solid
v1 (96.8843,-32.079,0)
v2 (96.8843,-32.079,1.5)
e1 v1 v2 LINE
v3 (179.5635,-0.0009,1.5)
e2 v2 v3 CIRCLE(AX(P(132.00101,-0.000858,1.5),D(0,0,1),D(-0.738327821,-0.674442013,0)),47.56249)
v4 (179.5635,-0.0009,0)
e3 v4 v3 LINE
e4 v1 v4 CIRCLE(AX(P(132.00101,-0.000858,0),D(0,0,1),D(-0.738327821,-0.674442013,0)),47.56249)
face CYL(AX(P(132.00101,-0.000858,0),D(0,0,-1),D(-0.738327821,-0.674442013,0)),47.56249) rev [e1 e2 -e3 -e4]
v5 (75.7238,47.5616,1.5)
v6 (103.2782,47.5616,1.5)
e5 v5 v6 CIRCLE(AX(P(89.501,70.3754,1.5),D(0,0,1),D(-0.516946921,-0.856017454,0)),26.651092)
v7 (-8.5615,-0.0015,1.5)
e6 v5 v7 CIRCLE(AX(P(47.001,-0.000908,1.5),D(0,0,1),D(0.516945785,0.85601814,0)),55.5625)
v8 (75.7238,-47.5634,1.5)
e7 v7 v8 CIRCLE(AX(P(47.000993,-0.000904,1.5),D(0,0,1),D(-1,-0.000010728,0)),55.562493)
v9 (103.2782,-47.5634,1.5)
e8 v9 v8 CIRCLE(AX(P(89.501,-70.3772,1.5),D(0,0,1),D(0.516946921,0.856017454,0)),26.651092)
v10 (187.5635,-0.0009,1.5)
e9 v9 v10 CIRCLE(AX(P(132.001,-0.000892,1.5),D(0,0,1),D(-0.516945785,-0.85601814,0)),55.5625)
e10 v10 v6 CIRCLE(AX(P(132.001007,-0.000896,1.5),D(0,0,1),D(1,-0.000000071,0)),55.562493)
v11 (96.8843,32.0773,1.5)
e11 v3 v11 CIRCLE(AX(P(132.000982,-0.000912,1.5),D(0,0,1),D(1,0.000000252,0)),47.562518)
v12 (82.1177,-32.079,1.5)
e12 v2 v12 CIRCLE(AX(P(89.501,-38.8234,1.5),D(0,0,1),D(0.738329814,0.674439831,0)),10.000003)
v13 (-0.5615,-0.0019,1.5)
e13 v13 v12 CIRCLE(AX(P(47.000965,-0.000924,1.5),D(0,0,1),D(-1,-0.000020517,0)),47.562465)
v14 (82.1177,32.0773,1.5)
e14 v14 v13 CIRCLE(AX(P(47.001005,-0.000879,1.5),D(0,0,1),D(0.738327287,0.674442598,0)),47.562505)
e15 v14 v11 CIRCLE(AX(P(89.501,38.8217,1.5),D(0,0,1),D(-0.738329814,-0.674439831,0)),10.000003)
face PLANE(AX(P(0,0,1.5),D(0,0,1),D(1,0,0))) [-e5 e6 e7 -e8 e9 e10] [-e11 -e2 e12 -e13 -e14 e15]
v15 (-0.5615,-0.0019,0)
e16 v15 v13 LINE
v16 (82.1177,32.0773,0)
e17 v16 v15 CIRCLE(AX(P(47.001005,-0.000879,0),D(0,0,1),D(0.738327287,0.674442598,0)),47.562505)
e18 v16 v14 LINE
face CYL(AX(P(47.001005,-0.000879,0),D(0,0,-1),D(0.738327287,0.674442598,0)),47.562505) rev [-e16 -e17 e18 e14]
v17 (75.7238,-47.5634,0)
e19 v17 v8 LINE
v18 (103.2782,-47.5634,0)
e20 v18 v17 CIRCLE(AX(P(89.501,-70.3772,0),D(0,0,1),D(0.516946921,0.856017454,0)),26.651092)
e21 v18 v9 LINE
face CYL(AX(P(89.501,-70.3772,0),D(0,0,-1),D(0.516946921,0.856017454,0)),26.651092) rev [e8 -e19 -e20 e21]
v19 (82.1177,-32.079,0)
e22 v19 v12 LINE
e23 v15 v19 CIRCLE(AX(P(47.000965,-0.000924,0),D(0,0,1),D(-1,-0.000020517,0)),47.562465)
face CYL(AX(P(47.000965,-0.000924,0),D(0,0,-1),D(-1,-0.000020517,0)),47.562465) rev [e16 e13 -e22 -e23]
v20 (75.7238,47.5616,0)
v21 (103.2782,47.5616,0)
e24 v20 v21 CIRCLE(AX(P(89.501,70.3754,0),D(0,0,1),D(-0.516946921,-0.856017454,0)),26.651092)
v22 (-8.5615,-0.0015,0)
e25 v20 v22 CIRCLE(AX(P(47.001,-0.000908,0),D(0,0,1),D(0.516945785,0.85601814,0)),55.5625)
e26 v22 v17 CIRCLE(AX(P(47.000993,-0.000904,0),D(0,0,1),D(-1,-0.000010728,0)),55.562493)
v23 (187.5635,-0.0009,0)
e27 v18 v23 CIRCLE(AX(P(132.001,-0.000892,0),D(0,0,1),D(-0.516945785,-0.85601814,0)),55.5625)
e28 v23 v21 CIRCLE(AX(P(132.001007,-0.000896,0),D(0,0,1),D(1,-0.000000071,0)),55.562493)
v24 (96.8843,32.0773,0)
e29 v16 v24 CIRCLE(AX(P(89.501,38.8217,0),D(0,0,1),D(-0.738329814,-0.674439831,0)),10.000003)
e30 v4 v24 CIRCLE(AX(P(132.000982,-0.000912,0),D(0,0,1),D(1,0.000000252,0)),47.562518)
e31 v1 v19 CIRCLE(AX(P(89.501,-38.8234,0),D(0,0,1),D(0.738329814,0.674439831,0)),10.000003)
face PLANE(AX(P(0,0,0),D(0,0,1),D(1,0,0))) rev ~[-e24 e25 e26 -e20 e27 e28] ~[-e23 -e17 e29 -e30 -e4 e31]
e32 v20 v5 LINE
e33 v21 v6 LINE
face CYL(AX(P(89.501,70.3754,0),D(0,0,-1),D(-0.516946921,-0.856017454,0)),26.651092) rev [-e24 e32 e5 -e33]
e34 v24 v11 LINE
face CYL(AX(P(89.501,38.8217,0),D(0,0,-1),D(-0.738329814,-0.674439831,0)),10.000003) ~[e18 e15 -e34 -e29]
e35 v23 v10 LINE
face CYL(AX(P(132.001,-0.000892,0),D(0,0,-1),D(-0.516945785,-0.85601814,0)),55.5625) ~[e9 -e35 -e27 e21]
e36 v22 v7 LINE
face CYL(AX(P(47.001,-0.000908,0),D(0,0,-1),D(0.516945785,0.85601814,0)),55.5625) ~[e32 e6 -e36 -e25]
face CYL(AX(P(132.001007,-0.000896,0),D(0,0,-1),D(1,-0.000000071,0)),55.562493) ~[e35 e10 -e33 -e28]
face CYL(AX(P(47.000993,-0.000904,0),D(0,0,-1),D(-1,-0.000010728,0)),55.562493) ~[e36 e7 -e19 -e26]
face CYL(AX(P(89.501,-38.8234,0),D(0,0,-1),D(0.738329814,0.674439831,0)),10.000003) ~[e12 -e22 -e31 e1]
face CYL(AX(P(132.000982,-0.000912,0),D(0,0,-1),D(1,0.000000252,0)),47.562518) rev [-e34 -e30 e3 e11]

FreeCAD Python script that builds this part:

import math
import FreeCAD as App
import Part
import Sketcher

V = App.Vector
Q = App.Units.Quantity

doc = App.newDocument("Part")
params = doc.addObject("Spreadsheet::Sheet", "Params")
for row, (alias, value) in enumerate([
    ("sketch1_radius", "2.1875 in"),
    ("pad1_length", "1.5 mm"),
], start=1):
    params.set(f"A{row}", alias)
    params.set(f"B{row}", "=" + value)
    params.setAlias(f"B{row}", alias)

body = doc.addObject("PartDesign::Body", "Body")

# Sketch on XY plane
sketch1 = doc.addObject("Sketcher::SketchObject", "Sketch")
body.addObject(sketch1)
sketch1.AttachmentSupport = (doc.XY_Plane, [""])
sketch1.MapMode = "FlatFace"
sketch1.addGeometry(Part.ArcOfCircle(Part.Circle(V(90, 70, 0), V(0, 0, 1), 27), math.radians(-121), math.radians(-59)), False)
sketch1.addGeometry(Part.ArcOfCircle(Part.Circle(V(47, 0, 0), V(0, 0, 1), 56), math.radians(59), math.radians(180)), False)
sketch1.addGeometry(Part.ArcOfCircle(Part.Circle(V(47, 0, 0), V(0, 0, 1), 56), math.radians(-180), math.radians(-59)), False)
sketch1.addGeometry(Part.ArcOfCircle(Part.Circle(V(90, -70, 0), V(0, 0, 1), 27), math.radians(59), math.radians(121)), False)
sketch1.addGeometry(Part.ArcOfCircle(Part.Circle(V(132, 0, 0), V(0, 0, 1), 56), math.radians(-121), math.radians(0)), False)
sketch1.addGeometry(Part.ArcOfCircle(Part.Circle(V(132, 0, 0), V(0, 0, 1), 56), math.radians(0), math.radians(121)), False)
sketch1.addGeometry(Part.ArcOfCircle(Part.Circle(V(47, 0, 0), V(0, 0, 1), 48), math.radians(42), math.radians(180)), False)
sketch1.addGeometry(Part.ArcOfCircle(Part.Circle(V(90, 39, 0), V(0, 0, 1), 10), math.radians(-138), math.radians(-42)), False)
sketch1.addGeometry(Part.ArcOfCircle(Part.Circle(V(132, 0, 0), V(0, 0, 1), 48), math.radians(0), math.radians(138)), False)
sketch1.addGeometry(Part.ArcOfCircle(Part.Circle(V(132, 0, 0), V(0, 0, 1), 48), math.radians(-138), math.radians(0)), False)
sketch1.addGeometry(Part.ArcOfCircle(Part.Circle(V(90, -39, 0), V(0, 0, 1), 10), math.radians(42), math.radians(138)), False)
sketch1.addGeometry(Part.ArcOfCircle(Part.Circle(V(47, 0, 0), V(0, 0, 1), 48), math.radians(-180), math.radians(-42)), False)
sketch1.addConstraint(Sketcher.Constraint("Tangent", 0, 1, 1, 1))
sketch1.addConstraint(Sketcher.Constraint("Tangent", 1, 2, 2, 1))
sketch1.addConstraint(Sketcher.Constraint("Tangent", 2, 2, 3, 2))
sketch1.addConstraint(Sketcher.Constraint("Tangent", 3, 1, 4, 1))
sketch1.addConstraint(Sketcher.Constraint("Tangent", 4, 2, 5, 1))
sketch1.addConstraint(Sketcher.Constraint("Tangent", 5, 2, 0, 2))
sketch1.addConstraint(Sketcher.Constraint("Tangent", 6, 1, 7, 1))
sketch1.addConstraint(Sketcher.Constraint("Tangent", 7, 2, 8, 2))
sketch1.addConstraint(Sketcher.Constraint("Tangent", 8, 1, 9, 2))
sketch1.addConstraint(Sketcher.Constraint("Tangent", 9, 1, 10, 1))
sketch1.addConstraint(Sketcher.Constraint("Tangent", 10, 2, 11, 2))
sketch1.addConstraint(Sketcher.Constraint("Tangent", 11, 1, 6, 2))
sketch1.addConstraint(Sketcher.Constraint("Coincident", 6, 3, 1, 3))
sketch1.addConstraint(Sketcher.Constraint("Coincident", 8, 3, 4, 3))
sketch1.addConstraint(Sketcher.Constraint("Equal", 1, 2))
sketch1.addConstraint(Sketcher.Constraint("Equal", 0, 3))
sketch1.addConstraint(Sketcher.Constraint("Equal", 2, 4))
sketch1.addConstraint(Sketcher.Constraint("Equal", 4, 5))
sketch1.addConstraint(Sketcher.Constraint("Equal", 6, 8))
sketch1.addConstraint(Sketcher.Constraint("Equal", 8, 9))
sketch1.addConstraint(Sketcher.Constraint("Equal", 7, 10))
sketch1.addConstraint(Sketcher.Constraint("Equal", 9, 11))
sketch1.addConstraint(Sketcher.Constraint("Horizontal", 2, 3, 4, 3))
sketch1.addConstraint(Sketcher.Constraint("Horizontal", 11, 3, 4, 2))
sketch1.addConstraint(Sketcher.Constraint("Horizontal", 4, 2, 8, 1))
sketch1.addConstraint(Sketcher.Constraint("Radius", 7, Q("0.3937 in")))
sketch1.addConstraint(Sketcher.Constraint("Radius", 6, 47.5625))
sketch1.addConstraint(Sketcher.Constraint("Radius", 1, Q("2.1875 in")))
sketch1.addConstraint(Sketcher.Constraint("Radius", 0, 26.651))
sketch1.addConstraint(Sketcher.Constraint("DistanceX", 1, 3, 4, 3, 85.0))
sketch1.addConstraint(Sketcher.Constraint("DistanceX", -1, 1, 4, 3, Q("5.1969 in")))
sketch1.addConstraint(Sketcher.Constraint("DistanceY", -1, 1, 0, 1, Q("1.8725 in")))
sketch1.addConstraint(Sketcher.Constraint("DistanceY", 1, 2, -1, 1, 0.0015))
sketch1.addConstraint(Sketcher.Constraint("DistanceY", 11, 1, -1, 1, 0.002))
sketch1.setExpression("Constraints[27]", "Params.sketch1_radius")
pad1 = doc.addObject("PartDesign::Pad", "Pad")
body.addObject(pad1)
pad1.Profile = sketch1
pad1.setExpression("Length", "Params.pad1_length")

doc.recompute()
